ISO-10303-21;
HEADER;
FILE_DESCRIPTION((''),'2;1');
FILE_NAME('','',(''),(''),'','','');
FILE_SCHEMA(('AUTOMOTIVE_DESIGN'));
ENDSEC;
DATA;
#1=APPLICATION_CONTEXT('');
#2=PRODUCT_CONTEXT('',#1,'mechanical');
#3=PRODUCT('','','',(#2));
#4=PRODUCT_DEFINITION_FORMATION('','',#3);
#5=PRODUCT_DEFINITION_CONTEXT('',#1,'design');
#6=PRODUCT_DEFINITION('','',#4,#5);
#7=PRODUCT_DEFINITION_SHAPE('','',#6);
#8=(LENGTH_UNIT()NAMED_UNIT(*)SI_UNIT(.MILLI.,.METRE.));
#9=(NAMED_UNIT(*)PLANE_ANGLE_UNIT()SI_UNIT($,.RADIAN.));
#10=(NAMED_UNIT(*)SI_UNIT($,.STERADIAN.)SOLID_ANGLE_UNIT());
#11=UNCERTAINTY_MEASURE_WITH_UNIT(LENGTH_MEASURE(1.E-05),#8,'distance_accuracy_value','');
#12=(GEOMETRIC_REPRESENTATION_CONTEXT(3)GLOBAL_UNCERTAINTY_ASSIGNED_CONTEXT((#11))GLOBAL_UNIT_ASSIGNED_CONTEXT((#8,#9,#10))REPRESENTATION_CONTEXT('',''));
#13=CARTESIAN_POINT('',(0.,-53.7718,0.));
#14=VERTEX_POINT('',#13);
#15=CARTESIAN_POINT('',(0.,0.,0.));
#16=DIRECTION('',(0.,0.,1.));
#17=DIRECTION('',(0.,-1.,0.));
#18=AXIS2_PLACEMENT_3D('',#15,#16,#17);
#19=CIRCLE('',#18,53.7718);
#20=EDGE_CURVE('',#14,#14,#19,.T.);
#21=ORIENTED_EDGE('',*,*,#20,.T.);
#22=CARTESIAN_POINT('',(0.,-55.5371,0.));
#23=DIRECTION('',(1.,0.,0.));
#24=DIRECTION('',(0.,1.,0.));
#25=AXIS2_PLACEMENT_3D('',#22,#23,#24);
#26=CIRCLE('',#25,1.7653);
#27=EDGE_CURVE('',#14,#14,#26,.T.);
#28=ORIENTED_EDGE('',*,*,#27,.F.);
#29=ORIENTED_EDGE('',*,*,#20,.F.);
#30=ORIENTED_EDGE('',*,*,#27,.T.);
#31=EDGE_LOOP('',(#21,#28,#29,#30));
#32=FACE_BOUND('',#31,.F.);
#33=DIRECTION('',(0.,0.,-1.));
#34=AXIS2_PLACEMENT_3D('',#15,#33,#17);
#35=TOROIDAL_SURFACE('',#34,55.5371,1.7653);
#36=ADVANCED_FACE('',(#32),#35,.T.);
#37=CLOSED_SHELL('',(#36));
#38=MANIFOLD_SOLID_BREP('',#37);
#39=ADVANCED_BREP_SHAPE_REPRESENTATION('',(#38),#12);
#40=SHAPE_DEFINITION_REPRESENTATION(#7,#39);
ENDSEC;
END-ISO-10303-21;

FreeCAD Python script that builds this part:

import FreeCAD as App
import Part
import Sketcher
Q = App.Units.Quantity

doc = App.newDocument("Part")
body = doc.addObject("PartDesign::Body", "Body")

# Sketch on YZ plane
sketch1 = body.newObject("Sketcher::SketchObject", "Sketch")
sketch1.AttachmentSupport = (doc.getObject("YZ_Plane"), [""])
sketch1.MapMode = "FlatFace"
sketch1.addGeometry(Part.Circle(App.Vector(-55.5, 0, 0), App.Vector(0, 0, 1), 1.8), False)
sketch1.addConstraint(Sketcher.Constraint("PointOnObject", 0, 3, -1))
sketch1.addConstraint(Sketcher.Constraint("Diameter", 0, Q("0.139 in")))
sketch1.addConstraint(Sketcher.Constraint("DistanceX", 0, 3, -1, 1, Q("2.1865 in")))
revolution = body.newObject("PartDesign::Revolution", "Revolution")
revolution.Profile = sketch1
revolution.ReferenceAxis = (sketch1, ["V_Axis"])
revolution.Angle = 360

doc.recompute()
